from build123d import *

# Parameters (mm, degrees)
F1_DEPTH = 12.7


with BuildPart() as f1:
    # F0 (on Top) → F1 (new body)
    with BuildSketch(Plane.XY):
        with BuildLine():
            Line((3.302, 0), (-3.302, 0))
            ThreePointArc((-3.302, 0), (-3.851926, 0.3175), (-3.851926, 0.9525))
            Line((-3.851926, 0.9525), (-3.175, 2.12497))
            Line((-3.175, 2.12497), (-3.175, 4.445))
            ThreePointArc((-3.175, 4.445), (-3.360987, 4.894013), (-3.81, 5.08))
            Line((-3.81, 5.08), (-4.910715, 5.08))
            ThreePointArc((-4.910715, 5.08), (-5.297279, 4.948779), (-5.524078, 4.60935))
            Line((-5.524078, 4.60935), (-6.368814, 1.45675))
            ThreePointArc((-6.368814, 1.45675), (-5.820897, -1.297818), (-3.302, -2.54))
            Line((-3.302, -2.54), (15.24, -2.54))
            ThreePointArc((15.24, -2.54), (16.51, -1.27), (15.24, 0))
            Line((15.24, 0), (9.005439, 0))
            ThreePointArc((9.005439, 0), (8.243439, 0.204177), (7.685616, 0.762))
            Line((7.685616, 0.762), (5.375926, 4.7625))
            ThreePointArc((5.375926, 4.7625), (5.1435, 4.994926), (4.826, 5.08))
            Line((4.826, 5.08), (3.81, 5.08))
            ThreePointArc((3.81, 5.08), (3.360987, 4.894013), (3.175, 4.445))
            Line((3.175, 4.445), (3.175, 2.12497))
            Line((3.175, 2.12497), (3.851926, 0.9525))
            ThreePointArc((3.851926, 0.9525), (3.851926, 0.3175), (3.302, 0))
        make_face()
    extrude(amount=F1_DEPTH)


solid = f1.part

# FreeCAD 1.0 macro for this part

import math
import FreeCAD as App
import Part
import Sketcher
Q = App.Units.Quantity

doc = App.newDocument("Part")
body = doc.addObject("PartDesign::Body", "Body")

# Sketch on XY plane
sketch1 = doc.addObject("Sketcher::SketchObject", "Sketch")
body.addObject(sketch1)
sketch1.AttachmentSupport = (doc.XY_Plane, [""])
sketch1.MapMode = "FlatFace"
sketch1.addGeometry([
    Part.LineSegment(App.Vector(3.3, 0, 0), App.Vector(-3.3, 0, 0)),  # 0
    Part.ArcOfCircle(Part.Circle(App.Vector(-3.3, 0.6, 0), App.Vector(0, 0, 1), 0.6), math.radians(150), math.radians(270)),  # 1
    Part.LineSegment(App.Vector(-3.9, 1, 0), App.Vector(-3.2, 2.1, 0)),  # 2
    Part.LineSegment(App.Vector(-3.2, 2.1, 0), App.Vector(-3.2, 4.4, 0)),  # 3
    Part.ArcOfCircle(Part.Circle(App.Vector(-3.8, 4.4, 0), App.Vector(0, 0, 1), 0.6), math.radians(0), math.radians(90)),  # 4
    Part.LineSegment(App.Vector(-3.8, 5.1, 0), App.Vector(-4.9, 5.1, 0)),  # 5
    Part.ArcOfCircle(Part.Circle(App.Vector(-4.9, 4.4, 0), App.Vector(0, 0, 1), 0.6), math.radians(90), math.radians(165)),  # 6
    Part.LineSegment(App.Vector(-5.5, 4.6, 0), App.Vector(-6.4, 1.5, 0)),  # 7
    Part.ArcOfCircle(Part.Circle(App.Vector(-3.3, 0.6, 0), App.Vector(0, 0, 1), 3.2), math.radians(165), math.radians(270)),  # 8
    Part.LineSegment(App.Vector(-3.3, -2.5, 0), App.Vector(15.2, -2.5, 0)),  # 9
    Part.ArcOfCircle(Part.Circle(App.Vector(15.2, -1.3, 0), App.Vector(0, 0, 1), 1.3), math.radians(-90), math.radians(90)),  # 10
    Part.LineSegment(App.Vector(15.2, 0, 0), App.Vector(9, 0, 0)),  # 11
    Part.ArcOfCircle(Part.Circle(App.Vector(9, 1.5, 0), App.Vector(0, 0, 1), 1.5), math.radians(-150), math.radians(-90)),  # 12
    Part.LineSegment(App.Vector(7.7, 0.8, 0), App.Vector(5.4, 4.8, 0)),  # 13
    Part.ArcOfCircle(Part.Circle(App.Vector(4.8, 4.4, 0), App.Vector(0, 0, 1), 0.6), math.radians(30), math.radians(90)),  # 14
    Part.LineSegment(App.Vector(4.8, 5.1, 0), App.Vector(3.8, 5.1, 0)),  # 15
    Part.ArcOfCircle(Part.Circle(App.Vector(3.8, 4.4, 0), App.Vector(0, 0, 1), 0.6), math.radians(90), math.radians(180)),  # 16
    Part.LineSegment(App.Vector(3.2, 4.4, 0), App.Vector(3.2, 2.1, 0)),  # 17
    Part.LineSegment(App.Vector(3.2, 2.1, 0), App.Vector(3.9, 1, 0)),  # 18
    Part.ArcOfCircle(Part.Circle(App.Vector(3.3, 0.6, 0), App.Vector(0, 0, 1), 0.6), math.radians(-90), math.radians(30)),  # 19
], False)
sketch1.addConstraint([
    Sketcher.Constraint("Tangent", 0, 2, 1, 2),
    Sketcher.Constraint("Tangent", 1, 1, 2, 1),
    Sketcher.Constraint("Coincident", 2, 2, 3, 1),
    Sketcher.Constraint("Tangent", 3, 2, 4, 1),
    Sketcher.Constraint("Tangent", 4, 2, 5, 1),
    Sketcher.Constraint("Tangent", 5, 2, 6, 1),
    Sketcher.Constraint("Tangent", 6, 2, 7, 1),
    Sketcher.Constraint("Tangent", 7, 2, 8, 1),
    Sketcher.Constraint("Tangent", 8, 2, 9, 1),
    Sketcher.Constraint("Tangent", 9, 2, 10, 1),
    Sketcher.Constraint("Tangent", 10, 2, 11, 1),
    Sketcher.Constraint("Tangent", 11, 2, 12, 2),
    Sketcher.Constraint("Tangent", 12, 1, 13, 1),
    Sketcher.Constraint("Tangent", 13, 2, 14, 1),
    Sketcher.Constraint("Tangent", 14, 2, 15, 1),
    Sketcher.Constraint("Tangent", 15, 2, 16, 1),
    Sketcher.Constraint("Tangent", 16, 2, 17, 1),
    Sketcher.Constraint("Coincident", 17, 2, 18, 1),
    Sketcher.Constraint("Tangent", 18, 2, 19, 2),
    Sketcher.Constraint("Tangent", 19, 1, 0, 1),
    Sketcher.Constraint("Horizontal", 0),
    Sketcher.Constraint("Vertical", 3),
    Sketcher.Constraint("Horizontal", 5),
    Sketcher.Constraint("Horizontal", 9),
    Sketcher.Constraint("Horizontal", 11),
    Sketcher.Constraint("Horizontal", 15),
    Sketcher.Constraint("Vertical", 17),
    Sketcher.Constraint("Coincident", 8, 3, 1, 3),
    Sketcher.Constraint("Equal", 1, 4),
    Sketcher.Constraint("Equal", 4, 6),
    Sketcher.Constraint("Equal", 6, 14),
    Sketcher.Constraint("Equal", 14, 16),
    Sketcher.Constraint("Equal", 16, 19),
    Sketcher.Constraint("Symmetric", 0, 2, 19, 1, -1, 1),
    Sketcher.Constraint("Symmetric", 4, 3, 16, 3, -2),
    Sketcher.Constraint("PointOnObject", 10, 2, -1),
    Sketcher.Constraint("Parallel", 13, 18),
    Sketcher.Constraint("Horizontal", 2, 2, 17, 2),
    Sketcher.Constraint("Radius", 10, Q("0.05 in")),
    Sketcher.Constraint("Radius", 12, Q("0.06 in")),
    Sketcher.Constraint("Angle", 2, Q("59.999995 deg")),
    Sketcher.Constraint("Angle", 7, Q("-104.999989 deg")),
    Sketcher.Constraint("Radius", 1, Q("0.025 in")),
    Sketcher.Constraint("DistanceX", 0, 2, 0, 1, Q("0.26 in")),
    Sketcher.Constraint("DistanceX", 9, 1, 9, 2, Q("0.73 in")),
    Sketcher.Constraint("DistanceX", 15, 2, 15, 1, Q("0.04 in")),
    Sketcher.Constraint("DistanceY", -1, 1, 4, 2, Q("0.2 in")),
    Sketcher.Constraint("DistanceX", 4, 3, 16, 3, Q("0.2999999 in")),
])
pad1 = doc.addObject("PartDesign::Pad", "Pad")
body.addObject(pad1)
pad1.Profile = sketch1
pad1.Length = Q("0.5 in")

doc.recompute()
